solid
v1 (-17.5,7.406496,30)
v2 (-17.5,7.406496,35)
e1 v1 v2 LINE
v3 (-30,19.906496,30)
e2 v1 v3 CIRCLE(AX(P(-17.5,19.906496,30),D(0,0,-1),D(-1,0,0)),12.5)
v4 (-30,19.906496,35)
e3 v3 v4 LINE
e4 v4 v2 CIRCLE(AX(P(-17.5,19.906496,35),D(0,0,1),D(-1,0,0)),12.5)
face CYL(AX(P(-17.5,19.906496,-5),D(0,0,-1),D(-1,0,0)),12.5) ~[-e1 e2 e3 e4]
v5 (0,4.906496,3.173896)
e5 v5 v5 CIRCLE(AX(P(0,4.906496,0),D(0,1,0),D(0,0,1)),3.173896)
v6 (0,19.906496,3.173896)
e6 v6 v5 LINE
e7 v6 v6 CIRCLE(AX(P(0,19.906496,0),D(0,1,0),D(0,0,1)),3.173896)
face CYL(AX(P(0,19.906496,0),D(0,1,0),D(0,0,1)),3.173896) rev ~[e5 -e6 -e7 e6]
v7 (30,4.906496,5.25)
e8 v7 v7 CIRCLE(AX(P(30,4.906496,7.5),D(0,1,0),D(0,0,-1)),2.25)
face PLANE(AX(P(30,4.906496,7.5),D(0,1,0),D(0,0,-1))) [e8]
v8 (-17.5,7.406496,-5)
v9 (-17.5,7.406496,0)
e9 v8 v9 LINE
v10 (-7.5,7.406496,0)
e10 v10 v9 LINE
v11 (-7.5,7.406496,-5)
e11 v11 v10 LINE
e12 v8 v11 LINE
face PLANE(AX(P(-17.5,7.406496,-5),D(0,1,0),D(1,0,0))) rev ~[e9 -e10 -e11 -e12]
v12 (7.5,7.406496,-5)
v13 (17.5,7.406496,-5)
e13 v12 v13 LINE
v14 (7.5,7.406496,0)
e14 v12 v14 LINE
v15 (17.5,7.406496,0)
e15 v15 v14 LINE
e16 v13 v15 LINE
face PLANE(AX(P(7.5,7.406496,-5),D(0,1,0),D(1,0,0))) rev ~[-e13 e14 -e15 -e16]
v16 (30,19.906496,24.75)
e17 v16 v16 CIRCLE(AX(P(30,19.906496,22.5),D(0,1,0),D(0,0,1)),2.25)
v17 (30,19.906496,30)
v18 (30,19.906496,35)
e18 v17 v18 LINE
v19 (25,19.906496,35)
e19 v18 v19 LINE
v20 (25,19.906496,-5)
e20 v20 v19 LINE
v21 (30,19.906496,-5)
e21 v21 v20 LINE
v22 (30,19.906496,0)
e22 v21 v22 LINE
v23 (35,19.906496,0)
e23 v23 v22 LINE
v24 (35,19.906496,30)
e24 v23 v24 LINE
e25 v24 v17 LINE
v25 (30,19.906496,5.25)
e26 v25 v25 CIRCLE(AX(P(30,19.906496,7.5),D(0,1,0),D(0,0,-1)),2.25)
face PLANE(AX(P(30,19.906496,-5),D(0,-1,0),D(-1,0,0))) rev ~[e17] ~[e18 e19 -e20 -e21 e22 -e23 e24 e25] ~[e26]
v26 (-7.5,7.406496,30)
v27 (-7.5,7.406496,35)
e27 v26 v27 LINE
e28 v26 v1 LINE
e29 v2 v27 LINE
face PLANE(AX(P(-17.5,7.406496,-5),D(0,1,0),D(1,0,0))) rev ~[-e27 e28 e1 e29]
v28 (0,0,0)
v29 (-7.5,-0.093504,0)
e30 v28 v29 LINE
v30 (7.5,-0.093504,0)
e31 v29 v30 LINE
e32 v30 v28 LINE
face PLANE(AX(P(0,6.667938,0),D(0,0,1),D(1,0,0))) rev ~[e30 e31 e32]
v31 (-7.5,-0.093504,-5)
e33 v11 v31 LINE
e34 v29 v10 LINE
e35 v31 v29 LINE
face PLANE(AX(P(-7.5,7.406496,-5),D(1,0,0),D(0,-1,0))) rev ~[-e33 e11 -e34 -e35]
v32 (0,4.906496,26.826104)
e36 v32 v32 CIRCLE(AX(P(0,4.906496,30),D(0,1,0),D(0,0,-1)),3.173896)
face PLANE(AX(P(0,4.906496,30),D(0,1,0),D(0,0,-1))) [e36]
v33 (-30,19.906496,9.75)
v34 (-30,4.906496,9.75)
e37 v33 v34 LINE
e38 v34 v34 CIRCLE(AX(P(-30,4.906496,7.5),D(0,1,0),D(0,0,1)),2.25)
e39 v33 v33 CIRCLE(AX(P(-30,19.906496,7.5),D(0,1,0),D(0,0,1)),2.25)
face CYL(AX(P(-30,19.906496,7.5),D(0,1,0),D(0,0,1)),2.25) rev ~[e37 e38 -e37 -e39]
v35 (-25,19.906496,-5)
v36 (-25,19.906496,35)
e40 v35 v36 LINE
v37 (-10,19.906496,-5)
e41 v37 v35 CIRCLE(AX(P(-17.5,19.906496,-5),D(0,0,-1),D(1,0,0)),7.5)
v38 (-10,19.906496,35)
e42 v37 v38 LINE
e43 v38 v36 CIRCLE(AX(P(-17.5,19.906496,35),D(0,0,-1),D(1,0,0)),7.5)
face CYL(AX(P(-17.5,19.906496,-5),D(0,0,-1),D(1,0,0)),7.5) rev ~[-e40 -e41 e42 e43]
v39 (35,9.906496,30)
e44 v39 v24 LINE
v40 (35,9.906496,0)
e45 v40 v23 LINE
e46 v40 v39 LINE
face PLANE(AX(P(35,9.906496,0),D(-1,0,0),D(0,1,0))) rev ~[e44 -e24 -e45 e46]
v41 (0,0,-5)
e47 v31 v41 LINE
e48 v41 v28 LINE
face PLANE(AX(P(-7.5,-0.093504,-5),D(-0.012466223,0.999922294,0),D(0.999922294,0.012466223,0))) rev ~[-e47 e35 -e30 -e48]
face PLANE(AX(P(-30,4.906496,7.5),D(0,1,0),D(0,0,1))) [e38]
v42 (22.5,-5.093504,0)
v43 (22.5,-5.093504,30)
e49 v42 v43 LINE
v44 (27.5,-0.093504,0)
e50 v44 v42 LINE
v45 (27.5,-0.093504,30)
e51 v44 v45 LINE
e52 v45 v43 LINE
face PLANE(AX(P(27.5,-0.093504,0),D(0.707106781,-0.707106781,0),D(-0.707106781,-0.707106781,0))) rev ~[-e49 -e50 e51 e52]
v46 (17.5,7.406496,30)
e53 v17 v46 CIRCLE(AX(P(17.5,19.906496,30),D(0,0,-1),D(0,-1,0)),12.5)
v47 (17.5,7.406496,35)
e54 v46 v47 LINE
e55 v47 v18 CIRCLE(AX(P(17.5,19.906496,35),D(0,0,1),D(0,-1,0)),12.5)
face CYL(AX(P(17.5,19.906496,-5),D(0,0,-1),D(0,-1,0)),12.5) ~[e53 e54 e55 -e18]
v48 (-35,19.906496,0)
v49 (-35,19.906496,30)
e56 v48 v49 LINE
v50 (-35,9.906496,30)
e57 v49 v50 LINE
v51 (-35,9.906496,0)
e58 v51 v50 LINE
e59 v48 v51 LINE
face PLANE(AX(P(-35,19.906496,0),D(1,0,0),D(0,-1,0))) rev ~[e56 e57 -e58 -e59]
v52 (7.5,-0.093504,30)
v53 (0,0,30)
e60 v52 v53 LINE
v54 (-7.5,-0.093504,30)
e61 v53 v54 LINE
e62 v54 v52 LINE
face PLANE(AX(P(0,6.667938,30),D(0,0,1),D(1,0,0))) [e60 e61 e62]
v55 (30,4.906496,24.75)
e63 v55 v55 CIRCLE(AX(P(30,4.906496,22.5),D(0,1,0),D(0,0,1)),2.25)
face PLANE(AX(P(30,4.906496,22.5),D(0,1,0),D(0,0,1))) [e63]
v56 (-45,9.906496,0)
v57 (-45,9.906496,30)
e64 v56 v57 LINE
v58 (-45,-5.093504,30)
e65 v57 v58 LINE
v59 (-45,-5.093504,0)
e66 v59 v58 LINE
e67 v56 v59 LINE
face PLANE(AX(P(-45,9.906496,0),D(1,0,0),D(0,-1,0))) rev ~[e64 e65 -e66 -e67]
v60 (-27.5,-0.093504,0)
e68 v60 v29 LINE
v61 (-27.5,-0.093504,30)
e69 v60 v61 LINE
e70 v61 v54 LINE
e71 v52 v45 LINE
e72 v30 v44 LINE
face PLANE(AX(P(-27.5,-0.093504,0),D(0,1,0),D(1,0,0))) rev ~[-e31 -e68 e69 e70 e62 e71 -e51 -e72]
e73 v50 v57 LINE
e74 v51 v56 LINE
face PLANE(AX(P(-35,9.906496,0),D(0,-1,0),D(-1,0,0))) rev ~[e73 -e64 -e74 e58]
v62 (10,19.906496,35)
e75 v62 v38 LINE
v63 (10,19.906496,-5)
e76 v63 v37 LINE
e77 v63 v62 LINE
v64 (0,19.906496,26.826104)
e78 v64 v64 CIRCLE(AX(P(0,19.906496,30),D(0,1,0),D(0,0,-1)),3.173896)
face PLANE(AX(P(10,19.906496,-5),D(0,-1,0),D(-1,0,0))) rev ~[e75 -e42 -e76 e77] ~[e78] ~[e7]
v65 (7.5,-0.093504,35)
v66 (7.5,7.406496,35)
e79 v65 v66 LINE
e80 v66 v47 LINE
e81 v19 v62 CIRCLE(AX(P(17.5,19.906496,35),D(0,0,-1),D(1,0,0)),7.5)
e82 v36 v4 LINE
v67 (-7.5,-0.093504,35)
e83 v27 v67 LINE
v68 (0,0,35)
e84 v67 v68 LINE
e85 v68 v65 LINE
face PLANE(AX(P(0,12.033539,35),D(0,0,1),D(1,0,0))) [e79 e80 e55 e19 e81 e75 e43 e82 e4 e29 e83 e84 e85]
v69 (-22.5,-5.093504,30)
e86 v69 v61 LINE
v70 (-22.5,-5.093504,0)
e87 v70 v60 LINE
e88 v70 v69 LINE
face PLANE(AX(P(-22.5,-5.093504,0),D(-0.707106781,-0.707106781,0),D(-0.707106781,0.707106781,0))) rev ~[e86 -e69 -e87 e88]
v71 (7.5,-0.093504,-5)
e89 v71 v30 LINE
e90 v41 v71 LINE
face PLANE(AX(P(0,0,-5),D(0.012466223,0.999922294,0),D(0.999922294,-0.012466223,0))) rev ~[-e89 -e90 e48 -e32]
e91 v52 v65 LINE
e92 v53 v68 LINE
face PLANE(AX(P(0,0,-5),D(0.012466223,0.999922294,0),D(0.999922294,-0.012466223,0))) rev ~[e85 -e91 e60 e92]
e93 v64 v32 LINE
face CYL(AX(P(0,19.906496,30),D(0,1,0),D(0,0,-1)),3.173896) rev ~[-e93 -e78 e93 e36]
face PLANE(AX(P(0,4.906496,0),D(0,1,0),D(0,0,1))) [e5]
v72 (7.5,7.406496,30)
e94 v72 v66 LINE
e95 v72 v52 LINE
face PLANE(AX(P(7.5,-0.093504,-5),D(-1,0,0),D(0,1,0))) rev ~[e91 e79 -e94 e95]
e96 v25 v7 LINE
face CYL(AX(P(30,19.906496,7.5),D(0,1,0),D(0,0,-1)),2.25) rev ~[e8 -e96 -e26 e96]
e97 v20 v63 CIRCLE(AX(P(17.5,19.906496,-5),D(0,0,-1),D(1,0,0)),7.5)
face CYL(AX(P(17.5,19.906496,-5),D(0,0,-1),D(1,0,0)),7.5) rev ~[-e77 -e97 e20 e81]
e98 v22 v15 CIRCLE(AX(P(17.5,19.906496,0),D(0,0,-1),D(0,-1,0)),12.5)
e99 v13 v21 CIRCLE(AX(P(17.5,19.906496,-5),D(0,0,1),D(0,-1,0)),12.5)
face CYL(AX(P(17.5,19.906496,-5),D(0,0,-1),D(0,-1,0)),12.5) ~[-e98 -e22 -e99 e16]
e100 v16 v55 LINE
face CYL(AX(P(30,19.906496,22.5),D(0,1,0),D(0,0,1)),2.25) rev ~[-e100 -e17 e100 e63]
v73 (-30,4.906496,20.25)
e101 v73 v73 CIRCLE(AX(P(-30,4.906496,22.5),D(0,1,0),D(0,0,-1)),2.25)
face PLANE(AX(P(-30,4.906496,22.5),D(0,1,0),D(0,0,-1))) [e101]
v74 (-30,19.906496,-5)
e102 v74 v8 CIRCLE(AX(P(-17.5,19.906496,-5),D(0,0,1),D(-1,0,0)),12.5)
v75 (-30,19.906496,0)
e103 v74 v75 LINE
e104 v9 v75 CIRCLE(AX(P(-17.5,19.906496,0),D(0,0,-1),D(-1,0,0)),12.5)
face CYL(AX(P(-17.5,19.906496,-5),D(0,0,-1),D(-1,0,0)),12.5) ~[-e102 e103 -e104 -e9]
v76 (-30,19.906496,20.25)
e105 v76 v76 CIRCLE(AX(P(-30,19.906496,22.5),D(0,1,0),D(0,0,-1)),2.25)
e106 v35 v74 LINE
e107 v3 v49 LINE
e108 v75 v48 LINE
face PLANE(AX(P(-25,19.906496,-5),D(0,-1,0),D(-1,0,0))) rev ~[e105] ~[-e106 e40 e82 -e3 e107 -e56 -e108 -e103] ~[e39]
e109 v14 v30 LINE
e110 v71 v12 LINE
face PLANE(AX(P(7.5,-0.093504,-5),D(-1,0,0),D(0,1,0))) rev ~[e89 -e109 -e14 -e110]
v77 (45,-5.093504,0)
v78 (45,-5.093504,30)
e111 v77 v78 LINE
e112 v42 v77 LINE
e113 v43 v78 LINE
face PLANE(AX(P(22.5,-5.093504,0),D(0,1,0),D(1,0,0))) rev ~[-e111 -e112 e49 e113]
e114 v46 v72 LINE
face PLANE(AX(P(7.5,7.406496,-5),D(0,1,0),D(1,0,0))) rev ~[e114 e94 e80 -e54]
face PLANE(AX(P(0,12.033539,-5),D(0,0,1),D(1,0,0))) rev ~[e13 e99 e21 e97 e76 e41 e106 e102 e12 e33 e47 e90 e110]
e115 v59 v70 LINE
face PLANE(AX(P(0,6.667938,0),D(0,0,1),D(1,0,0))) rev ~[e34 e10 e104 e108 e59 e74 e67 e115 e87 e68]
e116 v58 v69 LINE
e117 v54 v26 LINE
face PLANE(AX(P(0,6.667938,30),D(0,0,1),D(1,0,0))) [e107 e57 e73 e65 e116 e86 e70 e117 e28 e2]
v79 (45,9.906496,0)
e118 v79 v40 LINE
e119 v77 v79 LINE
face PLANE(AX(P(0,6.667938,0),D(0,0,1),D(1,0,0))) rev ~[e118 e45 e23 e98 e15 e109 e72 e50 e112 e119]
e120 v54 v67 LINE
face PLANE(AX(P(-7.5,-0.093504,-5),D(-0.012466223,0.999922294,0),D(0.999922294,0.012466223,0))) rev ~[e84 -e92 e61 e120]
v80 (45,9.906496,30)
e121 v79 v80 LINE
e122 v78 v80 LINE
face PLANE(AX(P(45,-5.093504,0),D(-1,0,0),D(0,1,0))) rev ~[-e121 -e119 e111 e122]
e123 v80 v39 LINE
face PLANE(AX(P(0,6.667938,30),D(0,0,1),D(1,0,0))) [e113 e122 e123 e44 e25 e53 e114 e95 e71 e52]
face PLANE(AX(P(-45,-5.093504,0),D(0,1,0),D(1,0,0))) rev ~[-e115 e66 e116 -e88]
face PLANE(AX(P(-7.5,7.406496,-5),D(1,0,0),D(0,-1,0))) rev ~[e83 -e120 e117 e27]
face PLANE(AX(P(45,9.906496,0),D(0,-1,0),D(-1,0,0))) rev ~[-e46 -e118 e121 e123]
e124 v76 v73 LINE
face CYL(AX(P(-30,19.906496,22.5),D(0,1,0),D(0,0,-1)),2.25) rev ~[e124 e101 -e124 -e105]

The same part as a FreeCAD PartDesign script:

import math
import FreeCAD as App
import Part
import Sketcher

V = App.Vector
Q = App.Units.Quantity

doc = App.newDocument("Part")
body = doc.addObject("PartDesign::Body", "Body")

sketch1 = body.newObject("Sketcher::SketchObject", "Sketch")
sketch1.AttachmentSupport = (doc.getObject("XY_Plane"), [""])
sketch1.MapMode = "FlatFace"
sketch1.addGeometry(Part.LineSegment(V(-45, 10, 0), V(-45, -5, 0)), False)
sketch1.addGeometry(Part.LineSegment(V(-45, -5, 0), V(-22, -5, 0)), False)
sketch1.addGeometry(Part.LineSegment(V(-22, -5, 0), V(-28, 0, 0)), False)
sketch1.addGeometry(Part.LineSegment(V(-28, 0, 0), V(28, 0, 0)), False)
sketch1.addGeometry(Part.LineSegment(V(28, 0, 0), V(22, -5, 0)), False)
sketch1.addGeometry(Part.LineSegment(V(22, -5, 0), V(45, -5, 0)), False)
sketch1.addGeometry(Part.LineSegment(V(45, -5, 0), V(45, 10, 0)), False)
sketch1.addGeometry(Part.LineSegment(V(45, 10, 0), V(35, 10, 0)), False)
sketch1.addGeometry(Part.LineSegment(V(35, 10, 0), V(35, 20, 0)), False)
sketch1.addGeometry(Part.LineSegment(V(35, 20, 0), V(25, 20, 0)), False)
sketch1.addGeometry(Part.ArcOfCircle(Part.Circle(V(18, 20, 0), V(0, 0, 1), 8), math.radians(180), math.radians(360)), False)
sketch1.addGeometry(Part.LineSegment(V(10, 20, 0), V(-10, 20, 0)), False)
sketch1.addGeometry(Part.ArcOfCircle(Part.Circle(V(-18, 20, 0), V(0, 0, 1), 8), math.radians(180), math.radians(360)), False)
sketch1.addGeometry(Part.LineSegment(V(-25, 20, 0), V(-35, 20, 0)), False)
sketch1.addGeometry(Part.LineSegment(V(-35, 20, 0), V(-35, 10, 0)), False)
sketch1.addGeometry(Part.LineSegment(V(-35, 10, 0), V(-45, 10, 0)), False)
sketch1.addConstraint(Sketcher.Constraint("Coincident", 0, 2, 1, 1))
sketch1.addConstraint(Sketcher.Constraint("Coincident", 1, 2, 2, 1))
sketch1.addConstraint(Sketcher.Constraint("Coincident", 2, 2, 3, 1))
sketch1.addConstraint(Sketcher.Constraint("Coincident", 3, 2, 4, 1))
sketch1.addConstraint(Sketcher.Constraint("Coincident", 4, 2, 5, 1))
sketch1.addConstraint(Sketcher.Constraint("Coincident", 5, 2, 6, 1))
sketch1.addConstraint(Sketcher.Constraint("Coincident", 6, 2, 7, 1))
sketch1.addConstraint(Sketcher.Constraint("Coincident", 7, 2, 8, 1))
sketch1.addConstraint(Sketcher.Constraint("Coincident", 8, 2, 9, 1))
sketch1.addConstraint(Sketcher.Constraint("Coincident", 9, 2, 10, 2))
sketch1.addConstraint(Sketcher.Constraint("Coincident", 10, 1, 11, 1))
sketch1.addConstraint(Sketcher.Constraint("Coincident", 11, 2, 12, 2))
sketch1.addConstraint(Sketcher.Constraint("Coincident", 12, 1, 13, 1))
sketch1.addConstraint(Sketcher.Constraint("Coincident", 13, 2, 14, 1))
sketch1.addConstraint(Sketcher.Constraint("Coincident", 14, 2, 15, 1))
sketch1.addConstraint(Sketcher.Constraint("Coincident", 15, 2, 0, 1))
sketch1.addConstraint(Sketcher.Constraint("Vertical", 0))
sketch1.addConstraint(Sketcher.Constraint("Horizontal", 1))
sketch1.addConstraint(Sketcher.Constraint("Horizontal", 3))
sketch1.addConstraint(Sketcher.Constraint("Horizontal", 5))
sketch1.addConstraint(Sketcher.Constraint("Vertical", 6))
sketch1.addConstraint(Sketcher.Constraint("Horizontal", 7))
sketch1.addConstraint(Sketcher.Constraint("Vertical", 8))
sketch1.addConstraint(Sketcher.Constraint("Horizontal", 9))
sketch1.addConstraint(Sketcher.Constraint("Horizontal", 11))
sketch1.addConstraint(Sketcher.Constraint("Horizontal", 13))
sketch1.addConstraint(Sketcher.Constraint("Vertical", 14))
sketch1.addConstraint(Sketcher.Constraint("Horizontal", 15))
sketch1.addConstraint(Sketcher.Constraint("Equal", 10, 12))
sketch1.addConstraint(Sketcher.Constraint("Symmetric", 10, 3, 12, 3, -2))
sketch1.addConstraint(Sketcher.Constraint("Symmetric", 1, 2, 4, 2, -2))
sketch1.addConstraint(Sketcher.Constraint("Symmetric", 8, 2, 13, 2, -2))
sketch1.addConstraint(Sketcher.Constraint("Symmetric", 6, 2, 15, 2, -2))
sketch1.addConstraint(Sketcher.Constraint("Perpendicular", 2, 4))
sketch1.addConstraint(Sketcher.Constraint("Horizontal", 12, 3, 8, 2))
sketch1.addConstraint(Sketcher.Constraint("Horizontal", 9, 2, 10, 1))
sketch1.addConstraint(Sketcher.Constraint("Equal", 7, 9))
sketch1.addConstraint(Sketcher.Constraint("Equal", 15, 8))
sketch1.addConstraint(Sketcher.Constraint("Equal", 2, 4))
sketch1.addConstraint(Sketcher.Constraint("Radius", 10, Q("7.5 mm")))
sketch1.addConstraint(Sketcher.Constraint("DistanceX", 3, 1, 3, 2, Q("55 mm")))
sketch1.addConstraint(Sketcher.Constraint("DistanceX", 7, 2, 7, 1, Q("10 mm")))
sketch1.addConstraint(Sketcher.Constraint("DistanceX", 11, 2, 11, 1, Q("20 mm")))
sketch1.addConstraint(Sketcher.Constraint("DistanceY", 0, 2, 0, 1, Q("15 mm")))
sketch1.addConstraint(Sketcher.Constraint("DistanceX", 1, 1, 1, 2, Q("22.5 mm")))
sketch1.addConstraint(Sketcher.Constraint("DistanceY", -1, 1, 10, 3, Q("19.906496 mm")))
pad1 = body.newObject("PartDesign::Pad", "Pad")
pad1.Profile = sketch1
pad1.Length = 30

sketch2 = body.newObject("Sketcher::SketchObject", "Sketch001")
sketch2.AttachmentSupport = (doc.getObject("XY_Plane"), [""])
sketch2.MapMode = "FlatFace"
sketch2.AttachmentOffset = App.Placement(V(0, 0, 30), App.Rotation())
sketch2.addGeometry(Part.LineSegment(V(-8, 0, 0), V(0, 0, 0)), False)
sketch2.addGeometry(Part.LineSegment(V(0, 0, 0), V(8, 0, 0)), False)
sketch2.addGeometry(Part.LineSegment(V(8, 0, 0), V(8, 7, 0)), False)
sketch2.addGeometry(Part.LineSegment(V(8, 7, 0), V(18, 7, 0)), False)
sketch2.addGeometry(Part.ArcOfCircle(Part.Circle(V(18, 20, 0), V(0, 0, 1), 12), math.radians(-90), math.radians(0)), False)
sketch2.addGeometry(Part.LineSegment(V(30, 20, 0), V(25, 20, 0)), False)
sketch2.addGeometry(Part.ArcOfCircle(Part.Circle(V(18, 20, 0), V(0, 0, 1), 8), math.radians(180), math.radians(360)), False)
sketch2.addGeometry(Part.LineSegment(V(10, 20, 0), V(-10, 20, 0)), False)
sketch2.addGeometry(Part.ArcOfCircle(Part.Circle(V(-18, 20, 0), V(0, 0, 1), 8), math.radians(180), math.radians(360)), False)
sketch2.addGeometry(Part.LineSegment(V(-25, 20, 0), V(-30, 20, 0)), False)
sketch2.addGeometry(Part.ArcOfCircle(Part.Circle(V(-18, 20, 0), V(0, 0, 1), 12), math.radians(180), math.radians(270)), False)
sketch2.addGeometry(Part.LineSegment(V(-18, 7, 0), V(-8, 7, 0)), False)
sketch2.addGeometry(Part.LineSegment(V(-8, 7, 0), V(-8, 0, 0)), False)
sketch2.addConstraint(Sketcher.Constraint("Coincident", 0, 2, 1, 1))
sketch2.addConstraint(Sketcher.Constraint("Coincident", 1, 2, 2, 1))
sketch2.addConstraint(Sketcher.Constraint("Coincident", 2, 2, 3, 1))
sketch2.addConstraint(Sketcher.Constraint("Tangent", 3, 2, 4, 1))
sketch2.addConstraint(Sketcher.Constraint("Coincident", 4, 2, 5, 1))
sketch2.addConstraint(Sketcher.Constraint("Coincident", 5, 2, 6, 2))
sketch2.addConstraint(Sketcher.Constraint("Coincident", 6, 1, 7, 1))
sketch2.addConstraint(Sketcher.Constraint("Coincident", 7, 2, 8, 2))
sketch2.addConstraint(Sketcher.Constraint("Coincident", 8, 1, 9, 1))
sketch2.addConstraint(Sketcher.Constraint("Coincident", 9, 2, 10, 1))
sketch2.addConstraint(Sketcher.Constraint("Tangent", 10, 2, 11, 1))
sketch2.addConstraint(Sketcher.Constraint("Coincident", 11, 2, 12, 1))
sketch2.addConstraint(Sketcher.Constraint("Coincident", 12, 2, 0, 1))
sketch2.addConstraint(Sketcher.Constraint("Vertical", 2))
sketch2.addConstraint(Sketcher.Constraint("Horizontal", 3))
sketch2.addConstraint(Sketcher.Constraint("Horizontal", 5))
sketch2.addConstraint(Sketcher.Constraint("Horizontal", 7))
sketch2.addConstraint(Sketcher.Constraint("Horizontal", 9))
sketch2.addConstraint(Sketcher.Constraint("Horizontal", 11))
sketch2.addConstraint(Sketcher.Constraint("Vertical", 12))
sketch2.addConstraint(Sketcher.Constraint("Coincident", 0, 2, -1, 1))
sketch2.addConstraint(Sketcher.Constraint("Coincident", 6, 3, 4, 3))
sketch2.addConstraint(Sketcher.Constraint("Coincident", 10, 3, 8, 3))
sketch2.addConstraint(Sketcher.Constraint("Equal", 6, 8))
sketch2.addConstraint(Sketcher.Constraint("Equal", 4, 10))
sketch2.addConstraint(Sketcher.Constraint("Symmetric", 4, 3, 8, 3, -2))
sketch2.addConstraint(Sketcher.Constraint("Symmetric", 1, 2, 12, 2, -2))
sketch2.addConstraint(Sketcher.Constraint("Horizontal", 10, 3, 4, 2))
sketch2.addConstraint(Sketcher.Constraint("Horizontal", 5, 2, 6, 1))
sketch2.addConstraint(Sketcher.Constraint("Horizontal", 7, 2, 8, 1))
sketch2.addConstraint(Sketcher.Constraint("Radius", 4, Q("12.5 mm")))
sketch2.addConstraint(Sketcher.Constraint("Radius", 6, Q("7.5 mm")))
sketch2.addConstraint(Sketcher.Constraint("DistanceX", 3, 1, 3, 2, Q("10 mm")))
sketch2.addConstraint(Sketcher.Constraint("DistanceX", 7, 2, 7, 1, Q("20 mm")))
sketch2.addConstraint(Sketcher.Constraint("DistanceY", 2, 1, 2, 2, Q("7.5 mm")))
sketch2.addConstraint(Sketcher.Constraint("DistanceY", -1, 1, 4, 3, Q("19.906496 mm")))
pad2 = body.newObject("PartDesign::Pad", "Pad001")
pad2.Profile = sketch2
pad2.Type = "TwoLengths"
pad2.Length = 5
pad2.Length2 = 35

sketch3 = body.newObject("Sketcher::SketchObject", "Sketch002")
sketch3.AttachmentSupport = (doc.getObject("XZ_Plane"), [""])
sketch3.MapMode = "FlatFace"
sketch3.AttachmentOffset = App.Placement(V(0, 0, -19.906496), App.Rotation())
sketch3.addGeometry(Part.Circle(V(0, 0, 0), V(0, 0, 1), 3.2), False)
sketch3.addGeometry(Part.Circle(V(-30, 7.5, 0), V(0, 0, 1), 2.2), False)
sketch3.addGeometry(Part.Circle(V(30, 7.5, 0), V(0, 0, 1), 2.2), False)
sketch3.addGeometry(Part.Circle(V(30, 22.5, 0), V(0, 0, 1), 2.2), False)
sketch3.addGeometry(Part.Circle(V(0, 30, 0), V(0, 0, 1), 3.2), False)
sketch3.addGeometry(Part.Circle(V(-30, 22.5, 0), V(0, 0, 1), 2.2), False)
sketch3.addConstraint(Sketcher.Constraint("Coincident", 0, 3, -1, 1))
sketch3.addConstraint(Sketcher.Constraint("Equal", 1, 2))
sketch3.addConstraint(Sketcher.Constraint("Equal", 2, 3))
sketch3.addConstraint(Sketcher.Constraint("Equal", 0, 4))
sketch3.addConstraint(Sketcher.Constraint("Equal", 3, 5))
sketch3.addConstraint(Sketcher.Constraint("Symmetric", 1, 3, 2, 3, -2))
sketch3.addConstraint(Sketcher.Constraint("Symmetric", 3, 3, 5, 3, -2))
sketch3.addConstraint(Sketcher.Constraint("PointOnObject", 4, 3, -2))
sketch3.addConstraint(Sketcher.Constraint("Vertical", 2, 3, 3, 3))
sketch3.addConstraint(Sketcher.Constraint("Diameter", 1, Q("4.5 mm")))
sketch3.addConstraint(Sketcher.Constraint("DistanceX", 1, 3, -1, 1, Q("30 mm")))
sketch3.addConstraint(Sketcher.Constraint("DistanceY", -1, 1, 4, 3, Q("30 mm")))
sketch3.addConstraint(Sketcher.Constraint("DistanceY", 2, 3, 3, 3, Q("15 mm")))
sketch3.addConstraint(Sketcher.Constraint("DistanceY", -1, 1, 1, 3, Q("7.5 mm")))
sketch3.addConstraint(Sketcher.Constraint("Diameter", 0, Q("6.347792 mm")))
pocket1 = body.newObject("PartDesign::Pocket", "Pocket")
pocket1.Profile = sketch3
pocket1.Length = 15
pocket1.Reversed = True

doc.recompute()
